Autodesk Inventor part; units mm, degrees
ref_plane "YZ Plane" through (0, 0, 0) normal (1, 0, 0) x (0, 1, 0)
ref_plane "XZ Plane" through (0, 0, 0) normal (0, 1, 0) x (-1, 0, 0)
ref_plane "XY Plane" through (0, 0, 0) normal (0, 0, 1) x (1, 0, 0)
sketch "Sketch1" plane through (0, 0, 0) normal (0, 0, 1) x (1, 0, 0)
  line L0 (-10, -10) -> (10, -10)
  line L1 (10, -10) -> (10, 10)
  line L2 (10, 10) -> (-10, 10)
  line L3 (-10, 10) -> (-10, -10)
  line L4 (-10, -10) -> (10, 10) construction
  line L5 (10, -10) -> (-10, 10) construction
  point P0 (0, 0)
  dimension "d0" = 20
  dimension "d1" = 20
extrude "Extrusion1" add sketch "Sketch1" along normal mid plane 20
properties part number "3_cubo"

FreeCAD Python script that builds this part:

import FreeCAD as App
import Part
import Sketcher
from FreeCAD import Vector

doc = App.newDocument("Part")
body = doc.addObject("PartDesign::Body", "Body")

# Sketch on XY plane
sketch1 = doc.addObject("Sketcher::SketchObject", "Sketch")
body.addObject(sketch1)
sketch1.AttachmentSupport = (doc.XY_Plane, [""])
sketch1.MapMode = "FlatFace"
sketch1.addGeometry([
    Part.LineSegment(Vector(-10, 10, 0), Vector(-10, -10, 0)),
    Part.LineSegment(Vector(-10, -10, 0), Vector(10, -10, 0)),
    Part.LineSegment(Vector(10, -10, 0), Vector(10, 10, 0)),
    Part.LineSegment(Vector(10, 10, 0), Vector(-10, 10, 0)),
], False)
sketch1.addConstraint([
    Sketcher.Constraint("Coincident", 0, 2, 1, 1),
    Sketcher.Constraint("Coincident", 1, 2, 2, 1),
    Sketcher.Constraint("Coincident", 2, 2, 3, 1),
    Sketcher.Constraint("Coincident", 3, 2, 0, 1),
    Sketcher.Constraint("Vertical", 0),
    Sketcher.Constraint("Horizontal", 1),
    Sketcher.Constraint("Vertical", 2),
    Sketcher.Constraint("Horizontal", 3),
    Sketcher.Constraint("Symmetric", 0, 2, 2, 2, -1, 1),
    Sketcher.Constraint("Equal", 3, 0),
    Sketcher.Constraint("DistanceX", 1, 1, 1, 2, 20.0),
])
pad1 = doc.addObject("PartDesign::Pad", "Pad")
body.addObject(pad1)
pad1.Profile = sketch1
pad1.Length = 20
pad1.Midplane = True

doc.recompute()
